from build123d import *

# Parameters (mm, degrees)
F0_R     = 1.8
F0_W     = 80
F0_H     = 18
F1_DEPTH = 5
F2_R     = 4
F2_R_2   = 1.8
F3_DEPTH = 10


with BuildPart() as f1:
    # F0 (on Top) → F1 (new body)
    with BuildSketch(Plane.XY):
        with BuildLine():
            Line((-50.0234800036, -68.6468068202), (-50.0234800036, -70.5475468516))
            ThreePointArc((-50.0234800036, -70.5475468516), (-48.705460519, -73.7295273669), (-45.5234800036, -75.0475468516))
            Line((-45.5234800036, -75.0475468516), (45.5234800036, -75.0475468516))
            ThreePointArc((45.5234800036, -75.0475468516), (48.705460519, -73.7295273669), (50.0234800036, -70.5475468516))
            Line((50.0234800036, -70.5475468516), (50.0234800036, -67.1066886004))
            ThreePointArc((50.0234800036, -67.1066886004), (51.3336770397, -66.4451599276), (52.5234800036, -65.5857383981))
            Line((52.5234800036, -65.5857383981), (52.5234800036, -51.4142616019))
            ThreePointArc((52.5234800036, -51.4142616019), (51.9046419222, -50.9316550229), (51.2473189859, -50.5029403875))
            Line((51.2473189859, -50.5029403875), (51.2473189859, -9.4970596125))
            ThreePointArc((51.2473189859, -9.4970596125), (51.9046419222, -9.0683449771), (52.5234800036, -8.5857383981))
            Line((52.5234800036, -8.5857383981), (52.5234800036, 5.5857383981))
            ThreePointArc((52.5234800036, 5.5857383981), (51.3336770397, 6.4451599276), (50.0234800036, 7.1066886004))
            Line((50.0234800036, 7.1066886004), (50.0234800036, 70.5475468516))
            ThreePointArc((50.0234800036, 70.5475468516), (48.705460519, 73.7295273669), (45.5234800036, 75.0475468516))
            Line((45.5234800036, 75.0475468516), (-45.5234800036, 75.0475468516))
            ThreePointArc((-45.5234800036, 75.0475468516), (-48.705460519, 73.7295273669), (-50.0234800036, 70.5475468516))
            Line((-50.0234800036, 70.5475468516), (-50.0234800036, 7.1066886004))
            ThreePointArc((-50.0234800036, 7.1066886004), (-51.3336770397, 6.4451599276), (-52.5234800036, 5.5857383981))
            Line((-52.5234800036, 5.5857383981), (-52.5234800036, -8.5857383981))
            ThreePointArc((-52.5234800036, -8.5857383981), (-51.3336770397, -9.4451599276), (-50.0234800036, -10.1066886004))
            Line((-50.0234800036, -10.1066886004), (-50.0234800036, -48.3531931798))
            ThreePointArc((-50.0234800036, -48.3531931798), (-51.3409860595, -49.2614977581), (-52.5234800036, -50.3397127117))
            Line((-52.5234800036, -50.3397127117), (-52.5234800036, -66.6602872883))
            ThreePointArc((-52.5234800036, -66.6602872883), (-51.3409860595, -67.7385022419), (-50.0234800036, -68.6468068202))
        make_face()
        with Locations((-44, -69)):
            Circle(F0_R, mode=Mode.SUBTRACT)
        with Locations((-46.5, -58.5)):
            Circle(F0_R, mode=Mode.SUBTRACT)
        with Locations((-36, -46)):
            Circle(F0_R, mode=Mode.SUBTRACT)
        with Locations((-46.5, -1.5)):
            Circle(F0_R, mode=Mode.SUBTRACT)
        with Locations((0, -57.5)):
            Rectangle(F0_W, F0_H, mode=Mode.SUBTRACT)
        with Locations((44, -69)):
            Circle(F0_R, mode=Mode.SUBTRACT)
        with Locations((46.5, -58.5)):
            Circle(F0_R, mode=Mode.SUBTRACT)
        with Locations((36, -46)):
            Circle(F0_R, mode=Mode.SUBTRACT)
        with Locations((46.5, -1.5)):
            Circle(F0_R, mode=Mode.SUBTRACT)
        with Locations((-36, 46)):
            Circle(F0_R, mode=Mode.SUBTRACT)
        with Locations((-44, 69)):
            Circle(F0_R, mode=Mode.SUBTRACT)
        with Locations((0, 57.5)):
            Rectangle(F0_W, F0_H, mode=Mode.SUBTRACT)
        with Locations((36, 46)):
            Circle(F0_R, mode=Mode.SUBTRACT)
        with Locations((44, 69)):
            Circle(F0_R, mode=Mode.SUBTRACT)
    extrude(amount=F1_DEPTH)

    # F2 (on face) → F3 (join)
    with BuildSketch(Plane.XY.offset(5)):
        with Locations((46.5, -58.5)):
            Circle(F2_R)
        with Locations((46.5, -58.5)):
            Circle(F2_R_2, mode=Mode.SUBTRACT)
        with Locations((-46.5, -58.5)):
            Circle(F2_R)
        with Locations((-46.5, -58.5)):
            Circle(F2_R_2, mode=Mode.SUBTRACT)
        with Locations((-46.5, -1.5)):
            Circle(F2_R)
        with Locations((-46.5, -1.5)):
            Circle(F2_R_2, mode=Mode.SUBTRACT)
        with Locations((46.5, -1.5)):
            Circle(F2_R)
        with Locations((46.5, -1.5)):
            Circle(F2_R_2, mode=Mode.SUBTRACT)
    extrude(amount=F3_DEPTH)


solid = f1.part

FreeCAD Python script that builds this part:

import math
import FreeCAD as App
import Part
import Sketcher
from FreeCAD import Vector
Q = App.Units.Quantity


def add_polygon(sketch, points):
    """Adds a closed chain of lines whose ends are joined by coincident constraints."""
    first, n = sketch.GeometryCount, len(points)
    for a, b in zip(points, points[1:] + points[:1]):
        sketch.addGeometry(Part.LineSegment(App.Vector(*a, 0), App.Vector(*b, 0)), False)
    for i in range(n):
        sketch.addConstraint(Sketcher.Constraint("Coincident", first + i, 2, first + (i + 1) % n, 1))

doc = App.newDocument("Part")
body = doc.addObject("PartDesign::Body", "Body")

sketch1 = body.newObject("Sketcher::SketchObject", "Sketch")
sketch1.AttachmentSupport = (doc.getObject("XY_Plane"), [""])
sketch1.MapMode = "FlatFace"
sketch1.addGeometry(Part.LineSegment(Vector(-50, -68.6, 0), Vector(-50, -70.5, 0)), False)
sketch1.addGeometry(Part.ArcOfCircle(Part.Circle(Vector(-45.5, -70.5, 0), Vector(0, 0, 1), 4.5), math.radians(180), math.radians(270)), False)
sketch1.addGeometry(Part.LineSegment(Vector(-45.5, -75, 0), Vector(45.5, -75, 0)), False)
sketch1.addGeometry(Part.ArcOfCircle(Part.Circle(Vector(45.5, -70.5, 0), Vector(0, 0, 1), 4.5), math.radians(-90), math.radians(0)), False)
sketch1.addGeometry(Part.LineSegment(Vector(50, -70.5, 0), Vector(50, -67.1, 0)), False)
sketch1.addGeometry(Part.ArcOfCircle(Part.Circle(Vector(46.5, -58.5, 0), Vector(0, 0, 1), 9.3), math.radians(-67.74), math.radians(-49.63)), False)
sketch1.addGeometry(Part.LineSegment(Vector(52.5, -65.6, 0), Vector(52.5, -51.4, 0)), False)
sketch1.addGeometry(Part.ArcOfCircle(Part.Circle(Vector(46.5, -58.5, 0), Vector(0, 0, 1), 9.3), math.radians(49.63), math.radians(59.31)), False)
sketch1.addGeometry(Part.LineSegment(Vector(51.2, -50.5, 0), Vector(51.2, -9.5, 0)), False)
sketch1.addGeometry(Part.ArcOfCircle(Part.Circle(Vector(46.5, -1.5, 0), Vector(0, 0, 1), 9.3), math.radians(-59.31), math.radians(-49.63)), False)
sketch1.addGeometry(Part.LineSegment(Vector(52.5, -8.6, 0), Vector(52.5, 5.6, 0)), False)
sketch1.addGeometry(Part.ArcOfCircle(Part.Circle(Vector(46.5, -1.5, 0), Vector(0, 0, 1), 9.3), math.radians(49.63), math.radians(67.74)), False)
sketch1.addGeometry(Part.LineSegment(Vector(50, 7.1, 0), Vector(50, 70.5, 0)), False)
sketch1.addGeometry(Part.ArcOfCircle(Part.Circle(Vector(45.5, 70.5, 0), Vector(0, 0, 1), 4.5), math.radians(0), math.radians(90)), False)
sketch1.addGeometry(Part.LineSegment(Vector(45.5, 75, 0), Vector(-45.5, 75, 0)), False)
sketch1.addGeometry(Part.ArcOfCircle(Part.Circle(Vector(-45.5, 70.5, 0), Vector(0, 0, 1), 4.5), math.radians(90), math.radians(180)), False)
sketch1.addGeometry(Part.LineSegment(Vector(-50, 70.5, 0), Vector(-50, 7.1, 0)), False)
sketch1.addGeometry(Part.ArcOfCircle(Part.Circle(Vector(-46.5, -1.5, 0), Vector(0, 0, 1), 9.3), math.radians(112.26), math.radians(130.37)), False)
sketch1.addGeometry(Part.LineSegment(Vector(-52.5, 5.6, 0), Vector(-52.5, -8.6, 0)), False)
sketch1.addGeometry(Part.ArcOfCircle(Part.Circle(Vector(-46.5, -1.5, 0), Vector(0, 0, 1), 9.3), math.radians(-130.37), math.radians(-112.26)), False)
sketch1.addGeometry(Part.LineSegment(Vector(-50, -10.1, 0), Vector(-50, -48.4, 0)), False)
sketch1.addGeometry(Part.ArcOfCircle(Part.Circle(Vector(-44, -58.5, 0), Vector(0, 0, 1), 11.8), math.radians(120.69), math.radians(136.25)), False)
sketch1.addGeometry(Part.LineSegment(Vector(-52.5, -50.3, 0), Vector(-52.5, -66.7, 0)), False)
sketch1.addGeometry(Part.ArcOfCircle(Part.Circle(Vector(-44, -58.5, 0), Vector(0, 0, 1), 11.8), math.radians(-136.25), math.radians(-120.69)), False)
sketch1.addGeometry(Part.Circle(Vector(-44, -69, 0), Vector(0, 0, 1), 1.8), False)
sketch1.addGeometry(Part.Circle(Vector(-46.5, -58.5, 0), Vector(0, 0, 1), 1.8), False)
sketch1.addGeometry(Part.Circle(Vector(-36, -46, 0), Vector(0, 0, 1), 1.8), False)
add_polygon(sketch1, [(40, -66.5), (-40, -66.5), (-40, -48.5), (40, -48.5)])
sketch1.addGeometry(Part.Circle(Vector(-46.5, -1.5, 0), Vector(0, 0, 1), 1.8), False)
sketch1.addGeometry(Part.Circle(Vector(44, -69, 0), Vector(0, 0, 1), 1.8), False)
sketch1.addGeometry(Part.Circle(Vector(46.5, -58.5, 0), Vector(0, 0, 1), 1.8), False)
sketch1.addGeometry(Part.Circle(Vector(36, -46, 0), Vector(0, 0, 1), 1.8), False)
sketch1.addGeometry(Part.Circle(Vector(46.5, -1.5, 0), Vector(0, 0, 1), 1.8), False)
sketch1.addGeometry(Part.Circle(Vector(-36, 46, 0), Vector(0, 0, 1), 1.8), False)
sketch1.addGeometry(Part.Circle(Vector(-44, 69, 0), Vector(0, 0, 1), 1.8), False)
add_polygon(sketch1, [(40, 48.5), (-40, 48.5), (-40, 66.5), (40, 66.5)])
sketch1.addGeometry(Part.Circle(Vector(36, 46, 0), Vector(0, 0, 1), 1.8), False)
sketch1.addGeometry(Part.Circle(Vector(44, 69, 0), Vector(0, 0, 1), 1.8), False)
sketch1.addConstraint([
    Sketcher.Constraint("Tangent", 0, 2, 1, 1),
    Sketcher.Constraint("Tangent", 1, 2, 2, 1),
    Sketcher.Constraint("Tangent", 2, 2, 3, 1),
    Sketcher.Constraint("Tangent", 3, 2, 4, 1),
    Sketcher.Constraint("Coincident", 4, 2, 5, 1),
    Sketcher.Constraint("Coincident", 5, 2, 6, 1),
    Sketcher.Constraint("Coincident", 6, 2, 7, 1),
    Sketcher.Constraint("Coincident", 7, 2, 8, 1),
    Sketcher.Constraint("Coincident", 8, 2, 9, 1),
    Sketcher.Constraint("Coincident", 9, 2, 10, 1),
    Sketcher.Constraint("Coincident", 10, 2, 11, 1),
    Sketcher.Constraint("Coincident", 11, 2, 12, 1),
    Sketcher.Constraint("Tangent", 12, 2, 13, 1),
    Sketcher.Constraint("Tangent", 13, 2, 14, 1),
    Sketcher.Constraint("Tangent", 14, 2, 15, 1),
    Sketcher.Constraint("Tangent", 15, 2, 16, 1),
    Sketcher.Constraint("Coincident", 16, 2, 17, 1),
    Sketcher.Constraint("Coincident", 17, 2, 18, 1),
    Sketcher.Constraint("Coincident", 18, 2, 19, 1),
    Sketcher.Constraint("Coincident", 19, 2, 20, 1),
    Sketcher.Constraint("Coincident", 20, 2, 21, 1),
    Sketcher.Constraint("Coincident", 21, 2, 22, 1),
    Sketcher.Constraint("Coincident", 22, 2, 23, 1),
    Sketcher.Constraint("Coincident", 23, 2, 0, 1),
    Sketcher.Constraint("Vertical", 0),
    Sketcher.Constraint("Horizontal", 2),
    Sketcher.Constraint("Vertical", 4),
    Sketcher.Constraint("Vertical", 6),
    Sketcher.Constraint("Vertical", 8),
    Sketcher.Constraint("Vertical", 10),
    Sketcher.Constraint("Vertical", 12),
    Sketcher.Constraint("Horizontal", 14),
    Sketcher.Constraint("Vertical", 16),
    Sketcher.Constraint("Vertical", 18),
    Sketcher.Constraint("Vertical", 20),
    Sketcher.Constraint("Vertical", 22),
    Sketcher.Constraint("Horizontal", 27),
    Sketcher.Constraint("Vertical", 28),
    Sketcher.Constraint("Horizontal", 29),
    Sketcher.Constraint("Vertical", 30),
    Sketcher.Constraint("Horizontal", 38),
    Sketcher.Constraint("Vertical", 39),
    Sketcher.Constraint("Horizontal", 40),
    Sketcher.Constraint("Vertical", 41),
    Sketcher.Constraint("Coincident", 7, 3, 5, 3),
    Sketcher.Constraint("Coincident", 11, 3, 9, 3),
    Sketcher.Constraint("Coincident", 19, 3, 17, 3),
    Sketcher.Constraint("Coincident", 23, 3, 21, 3),
    Sketcher.Constraint("Coincident", 31, 3, 17, 3),
    Sketcher.Constraint("Coincident", 33, 3, 5, 3),
    Sketcher.Constraint("Coincident", 35, 3, 9, 3),
    Sketcher.Constraint("Equal", 1, 3),
    Sketcher.Constraint("Equal", 5, 7),
    Sketcher.Constraint("Equal", 7, 9),
    Sketcher.Constraint("Equal", 9, 11),
    Sketcher.Constraint("Equal", 3, 13),
    Sketcher.Constraint("Equal", 13, 15),
    Sketcher.Constraint("Equal", 11, 17),
    Sketcher.Constraint("Equal", 17, 19),
    Sketcher.Constraint("Equal", 21, 23),
    Sketcher.Constraint("Equal", 24, 25),
    Sketcher.Constraint("Equal", 25, 26),
    Sketcher.Constraint("Equal", 26, 31),
    Sketcher.Constraint("Equal", 31, 32),
    Sketcher.Constraint("Equal", 32, 33),
    Sketcher.Constraint("Equal", 33, 34),
    Sketcher.Constraint("Equal", 34, 35),
    Sketcher.Constraint("Equal", 35, 36),
    Sketcher.Constraint("Equal", 36, 37),
    Sketcher.Constraint("Equal", 37, 42),
    Sketcher.Constraint("Equal", 42, 43),
    Sketcher.Constraint("Symmetric", 1, 3, 13, 3, -1, 1),
    Sketcher.Constraint("Symmetric", 34, 3, 36, 3, -1, 1),
    Sketcher.Constraint("Symmetric", 32, 3, 37, 3, -1, 1),
    Sketcher.Constraint("Symmetric", 26, 3, 42, 3, -1, 1),
    Sketcher.Constraint("Symmetric", 24, 3, 43, 3, -1, 1),
    Sketcher.Constraint("Symmetric", 29, 2, 38, 2, -1, 1),
    Sketcher.Constraint("Symmetric", 27, 2, 40, 2, -1, 1),
    Sketcher.Constraint("Symmetric", 9, 3, 17, 3, -2),
    Sketcher.Constraint("Symmetric", 5, 3, 25, 3, -2),
    Sketcher.Constraint("Symmetric", 24, 3, 32, 3, -2),
    Sketcher.Constraint("Symmetric", 26, 3, 34, 3, -2),
    Sketcher.Constraint("Horizontal", 7, 3, 21, 3),
    Sketcher.Constraint("Horizontal", 11, 2, 16, 2),
    Sketcher.Constraint("Horizontal", 10, 2, 17, 2),
    Sketcher.Constraint("Vertical", 7, 3, 9, 3),
    Sketcher.Constraint("Vertical", 3, 3, 13, 3),
    Sketcher.Constraint("Vertical", 23, 3, 24, 3),
    Sketcher.Constraint("Vertical", 6, 2, 9, 2),
    Sketcher.Constraint("Vertical", 16, 2, 19, 2),
    Sketcher.Constraint("Vertical", 18, 2, 21, 2),
    Sketcher.Constraint("Vertical", 28, 2, 38, 2),
    Sketcher.Constraint("Diameter", 24, Q("3.6 mm")),
    Sketcher.Constraint("Radius", 1, Q("4.5 mm")),
    Sketcher.Constraint("Radius", 5, Q("9.3 mm")),
    Sketcher.Constraint("Radius", 21, Q("11.8 mm")),
    Sketcher.Constraint("DistanceX", 27, 2, 27, 1, Q("80 mm")),
    Sketcher.Constraint("DistanceY", 28, 1, 28, 2, Q("18 mm")),
    Sketcher.Constraint("DistanceX", 21, 3, -1, 1, Q("44 mm")),
    Sketcher.Constraint("DistanceY", 24, 3, -1, 1, Q("69 mm")),
    Sketcher.Constraint("DistanceX", 26, 3, -1, 1, Q("36 mm")),
    Sketcher.Constraint("DistanceY", 26, 3, -1, 1, Q("46 mm")),
    Sketcher.Constraint("DistanceY", 5, 3, 9, 3, Q("57 mm")),
    Sketcher.Constraint("DistanceX", 17, 3, 9, 3, Q("93 mm")),
    Sketcher.Constraint("DistanceX", 3, 3, 5, 2, Q("7 mm")),
    Sketcher.Constraint("DistanceY", 27, 2, 21, 3, Q("8 mm")),
    Sketcher.Constraint("DistanceY", 5, 3, -1, 1, Q("58.5 mm")),
    Sketcher.Constraint("DistanceX", 2, 1, 2, 2, Q("91.04696 mm")),
    Sketcher.Constraint("DistanceY", 0, 2, 0, 1, Q("1.90074 mm")),
    Sketcher.Constraint("DistanceY", 8, 1, 8, 2, Q("41.005881 mm")),
])
pad1 = body.newObject("PartDesign::Pad", "Pad")
pad1.Profile = sketch1
pad1.Length = 5

sketch2 = body.newObject("Sketcher::SketchObject", "Sketch001")
sketch2.AttachmentSupport = (doc.getObject("XY_Plane"), [""])
sketch2.MapMode = "FlatFace"
sketch2.AttachmentOffset = App.Placement(Vector(0, 0, 5), App.Rotation())
sketch2.addGeometry([
    Part.Circle(Vector(46.5, -58.5, 0), Vector(0, 0, 1), 4),
    Part.Circle(Vector(46.5, -58.5, 0), Vector(0, 0, 1), 1.8),
    Part.Circle(Vector(-46.5, -58.5, 0), Vector(0, 0, 1), 4),
    Part.Circle(Vector(-46.5, -58.5, 0), Vector(0, 0, 1), 1.8),
    Part.Circle(Vector(-46.5, -1.5, 0), Vector(0, 0, 1), 4),
    Part.Circle(Vector(-46.5, -1.5, 0), Vector(0, 0, 1), 1.8),
    Part.Circle(Vector(46.5, -1.5, 0), Vector(0, 0, 1), 4),
    Part.Circle(Vector(46.5, -1.5, 0), Vector(0, 0, 1), 1.8),
], False)
sketch2.addConstraint([
    Sketcher.Constraint("Coincident", 1, 3, 0, 3),
    Sketcher.Constraint("Coincident", 3, 3, 2, 3),
    Sketcher.Constraint("Coincident", 5, 3, 4, 3),
    Sketcher.Constraint("Coincident", 7, 3, 6, 3),
    Sketcher.Constraint("Equal", 0, 2),
    Sketcher.Constraint("Equal", 1, 3),
    Sketcher.Constraint("Equal", 2, 4),
    Sketcher.Constraint("Equal", 3, 5),
    Sketcher.Constraint("Equal", 4, 6),
    Sketcher.Constraint("Equal", 5, 7),
    Sketcher.Constraint("Symmetric", 0, 3, 2, 3, -2),
    Sketcher.Constraint("Symmetric", 4, 3, 6, 3, -2),
    Sketcher.Constraint("Vertical", 3, 3, 4, 3),
    Sketcher.Constraint("Diameter", 0, Q("8 mm")),
    Sketcher.Constraint("Diameter", 1, Q("3.6 mm")),
    Sketcher.Constraint("DistanceX", 2, 3, 0, 3, Q("93 mm")),
    Sketcher.Constraint("DistanceY", 2, 3, 4, 3, Q("57 mm")),
    Sketcher.Constraint("DistanceY", 0, 3, -1, 1, Q("58.5 mm")),
])
pad2 = body.newObject("PartDesign::Pad", "Pad001")
pad2.Profile = sketch2
pad2.Length = 10

doc.recompute()
